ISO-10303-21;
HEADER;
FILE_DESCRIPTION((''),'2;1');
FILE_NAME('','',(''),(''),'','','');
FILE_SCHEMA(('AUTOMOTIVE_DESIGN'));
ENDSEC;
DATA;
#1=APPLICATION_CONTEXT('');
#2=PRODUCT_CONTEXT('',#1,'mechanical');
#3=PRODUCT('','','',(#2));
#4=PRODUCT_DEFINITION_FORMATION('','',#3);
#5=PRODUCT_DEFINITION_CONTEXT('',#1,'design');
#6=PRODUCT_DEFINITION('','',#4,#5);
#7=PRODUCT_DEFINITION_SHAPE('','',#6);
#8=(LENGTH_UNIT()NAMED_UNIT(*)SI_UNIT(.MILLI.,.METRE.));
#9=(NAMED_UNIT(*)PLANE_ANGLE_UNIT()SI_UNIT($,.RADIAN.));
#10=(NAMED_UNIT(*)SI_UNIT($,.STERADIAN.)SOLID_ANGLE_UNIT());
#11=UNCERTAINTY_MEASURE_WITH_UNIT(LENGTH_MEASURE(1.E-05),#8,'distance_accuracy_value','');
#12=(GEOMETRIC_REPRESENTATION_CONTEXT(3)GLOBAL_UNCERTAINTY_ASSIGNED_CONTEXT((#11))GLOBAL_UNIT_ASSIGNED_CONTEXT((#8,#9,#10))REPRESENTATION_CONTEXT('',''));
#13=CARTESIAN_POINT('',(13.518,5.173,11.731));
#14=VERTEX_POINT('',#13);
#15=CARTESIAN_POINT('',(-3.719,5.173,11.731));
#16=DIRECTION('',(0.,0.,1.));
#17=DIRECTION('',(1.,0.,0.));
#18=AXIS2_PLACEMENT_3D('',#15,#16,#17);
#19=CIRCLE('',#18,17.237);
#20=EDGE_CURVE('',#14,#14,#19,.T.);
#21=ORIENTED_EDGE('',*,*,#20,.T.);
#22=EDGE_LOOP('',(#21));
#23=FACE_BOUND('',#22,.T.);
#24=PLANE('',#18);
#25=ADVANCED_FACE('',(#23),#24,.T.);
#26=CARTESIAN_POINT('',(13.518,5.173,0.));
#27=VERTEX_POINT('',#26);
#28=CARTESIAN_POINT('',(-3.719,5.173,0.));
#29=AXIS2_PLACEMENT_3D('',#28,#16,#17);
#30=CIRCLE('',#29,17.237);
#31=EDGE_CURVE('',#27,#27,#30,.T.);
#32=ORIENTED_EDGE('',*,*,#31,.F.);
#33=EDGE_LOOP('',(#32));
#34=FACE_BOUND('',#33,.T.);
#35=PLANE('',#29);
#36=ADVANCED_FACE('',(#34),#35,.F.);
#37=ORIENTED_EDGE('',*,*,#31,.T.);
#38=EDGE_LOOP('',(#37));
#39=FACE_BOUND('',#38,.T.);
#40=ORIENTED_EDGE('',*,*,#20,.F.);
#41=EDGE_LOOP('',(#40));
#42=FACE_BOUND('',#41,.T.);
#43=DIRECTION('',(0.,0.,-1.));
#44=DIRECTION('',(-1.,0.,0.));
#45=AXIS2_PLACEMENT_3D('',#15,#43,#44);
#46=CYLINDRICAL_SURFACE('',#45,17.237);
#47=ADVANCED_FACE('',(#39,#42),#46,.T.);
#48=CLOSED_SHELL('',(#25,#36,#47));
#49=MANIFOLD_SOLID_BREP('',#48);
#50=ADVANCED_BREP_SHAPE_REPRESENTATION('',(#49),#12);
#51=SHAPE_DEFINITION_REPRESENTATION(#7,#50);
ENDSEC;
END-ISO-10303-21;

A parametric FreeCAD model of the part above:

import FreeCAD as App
import Part
import Sketcher

V = App.Vector
Q = App.Units.Quantity

doc = App.newDocument("Part")
body = doc.addObject("PartDesign::Body", "Body")

# Sketch on XY plane
sketch1 = doc.addObject("Sketcher::SketchObject", "Sketch")
body.addObject(sketch1)
sketch1.AttachmentSupport = (doc.XY_Plane, [""])
sketch1.MapMode = "FlatFace"
sketch1.addGeometry(Part.Circle(V(-4, 5, 0), V(0, 0, 1), 17), False)
sketch1.addConstraint([
    Sketcher.Constraint("Diameter", 0, Q("34.474 mm")),
    Sketcher.Constraint("DistanceX", 0, 3, -1, 1, Q("3.719 mm")),
    Sketcher.Constraint("DistanceY", -1, 1, 0, 3, Q("5.173 mm")),
])
pad1 = doc.addObject("PartDesign::Pad", "Pad")
body.addObject(pad1)
pad1.Profile = sketch1
pad1.Length = 11.731

doc.recompute()
